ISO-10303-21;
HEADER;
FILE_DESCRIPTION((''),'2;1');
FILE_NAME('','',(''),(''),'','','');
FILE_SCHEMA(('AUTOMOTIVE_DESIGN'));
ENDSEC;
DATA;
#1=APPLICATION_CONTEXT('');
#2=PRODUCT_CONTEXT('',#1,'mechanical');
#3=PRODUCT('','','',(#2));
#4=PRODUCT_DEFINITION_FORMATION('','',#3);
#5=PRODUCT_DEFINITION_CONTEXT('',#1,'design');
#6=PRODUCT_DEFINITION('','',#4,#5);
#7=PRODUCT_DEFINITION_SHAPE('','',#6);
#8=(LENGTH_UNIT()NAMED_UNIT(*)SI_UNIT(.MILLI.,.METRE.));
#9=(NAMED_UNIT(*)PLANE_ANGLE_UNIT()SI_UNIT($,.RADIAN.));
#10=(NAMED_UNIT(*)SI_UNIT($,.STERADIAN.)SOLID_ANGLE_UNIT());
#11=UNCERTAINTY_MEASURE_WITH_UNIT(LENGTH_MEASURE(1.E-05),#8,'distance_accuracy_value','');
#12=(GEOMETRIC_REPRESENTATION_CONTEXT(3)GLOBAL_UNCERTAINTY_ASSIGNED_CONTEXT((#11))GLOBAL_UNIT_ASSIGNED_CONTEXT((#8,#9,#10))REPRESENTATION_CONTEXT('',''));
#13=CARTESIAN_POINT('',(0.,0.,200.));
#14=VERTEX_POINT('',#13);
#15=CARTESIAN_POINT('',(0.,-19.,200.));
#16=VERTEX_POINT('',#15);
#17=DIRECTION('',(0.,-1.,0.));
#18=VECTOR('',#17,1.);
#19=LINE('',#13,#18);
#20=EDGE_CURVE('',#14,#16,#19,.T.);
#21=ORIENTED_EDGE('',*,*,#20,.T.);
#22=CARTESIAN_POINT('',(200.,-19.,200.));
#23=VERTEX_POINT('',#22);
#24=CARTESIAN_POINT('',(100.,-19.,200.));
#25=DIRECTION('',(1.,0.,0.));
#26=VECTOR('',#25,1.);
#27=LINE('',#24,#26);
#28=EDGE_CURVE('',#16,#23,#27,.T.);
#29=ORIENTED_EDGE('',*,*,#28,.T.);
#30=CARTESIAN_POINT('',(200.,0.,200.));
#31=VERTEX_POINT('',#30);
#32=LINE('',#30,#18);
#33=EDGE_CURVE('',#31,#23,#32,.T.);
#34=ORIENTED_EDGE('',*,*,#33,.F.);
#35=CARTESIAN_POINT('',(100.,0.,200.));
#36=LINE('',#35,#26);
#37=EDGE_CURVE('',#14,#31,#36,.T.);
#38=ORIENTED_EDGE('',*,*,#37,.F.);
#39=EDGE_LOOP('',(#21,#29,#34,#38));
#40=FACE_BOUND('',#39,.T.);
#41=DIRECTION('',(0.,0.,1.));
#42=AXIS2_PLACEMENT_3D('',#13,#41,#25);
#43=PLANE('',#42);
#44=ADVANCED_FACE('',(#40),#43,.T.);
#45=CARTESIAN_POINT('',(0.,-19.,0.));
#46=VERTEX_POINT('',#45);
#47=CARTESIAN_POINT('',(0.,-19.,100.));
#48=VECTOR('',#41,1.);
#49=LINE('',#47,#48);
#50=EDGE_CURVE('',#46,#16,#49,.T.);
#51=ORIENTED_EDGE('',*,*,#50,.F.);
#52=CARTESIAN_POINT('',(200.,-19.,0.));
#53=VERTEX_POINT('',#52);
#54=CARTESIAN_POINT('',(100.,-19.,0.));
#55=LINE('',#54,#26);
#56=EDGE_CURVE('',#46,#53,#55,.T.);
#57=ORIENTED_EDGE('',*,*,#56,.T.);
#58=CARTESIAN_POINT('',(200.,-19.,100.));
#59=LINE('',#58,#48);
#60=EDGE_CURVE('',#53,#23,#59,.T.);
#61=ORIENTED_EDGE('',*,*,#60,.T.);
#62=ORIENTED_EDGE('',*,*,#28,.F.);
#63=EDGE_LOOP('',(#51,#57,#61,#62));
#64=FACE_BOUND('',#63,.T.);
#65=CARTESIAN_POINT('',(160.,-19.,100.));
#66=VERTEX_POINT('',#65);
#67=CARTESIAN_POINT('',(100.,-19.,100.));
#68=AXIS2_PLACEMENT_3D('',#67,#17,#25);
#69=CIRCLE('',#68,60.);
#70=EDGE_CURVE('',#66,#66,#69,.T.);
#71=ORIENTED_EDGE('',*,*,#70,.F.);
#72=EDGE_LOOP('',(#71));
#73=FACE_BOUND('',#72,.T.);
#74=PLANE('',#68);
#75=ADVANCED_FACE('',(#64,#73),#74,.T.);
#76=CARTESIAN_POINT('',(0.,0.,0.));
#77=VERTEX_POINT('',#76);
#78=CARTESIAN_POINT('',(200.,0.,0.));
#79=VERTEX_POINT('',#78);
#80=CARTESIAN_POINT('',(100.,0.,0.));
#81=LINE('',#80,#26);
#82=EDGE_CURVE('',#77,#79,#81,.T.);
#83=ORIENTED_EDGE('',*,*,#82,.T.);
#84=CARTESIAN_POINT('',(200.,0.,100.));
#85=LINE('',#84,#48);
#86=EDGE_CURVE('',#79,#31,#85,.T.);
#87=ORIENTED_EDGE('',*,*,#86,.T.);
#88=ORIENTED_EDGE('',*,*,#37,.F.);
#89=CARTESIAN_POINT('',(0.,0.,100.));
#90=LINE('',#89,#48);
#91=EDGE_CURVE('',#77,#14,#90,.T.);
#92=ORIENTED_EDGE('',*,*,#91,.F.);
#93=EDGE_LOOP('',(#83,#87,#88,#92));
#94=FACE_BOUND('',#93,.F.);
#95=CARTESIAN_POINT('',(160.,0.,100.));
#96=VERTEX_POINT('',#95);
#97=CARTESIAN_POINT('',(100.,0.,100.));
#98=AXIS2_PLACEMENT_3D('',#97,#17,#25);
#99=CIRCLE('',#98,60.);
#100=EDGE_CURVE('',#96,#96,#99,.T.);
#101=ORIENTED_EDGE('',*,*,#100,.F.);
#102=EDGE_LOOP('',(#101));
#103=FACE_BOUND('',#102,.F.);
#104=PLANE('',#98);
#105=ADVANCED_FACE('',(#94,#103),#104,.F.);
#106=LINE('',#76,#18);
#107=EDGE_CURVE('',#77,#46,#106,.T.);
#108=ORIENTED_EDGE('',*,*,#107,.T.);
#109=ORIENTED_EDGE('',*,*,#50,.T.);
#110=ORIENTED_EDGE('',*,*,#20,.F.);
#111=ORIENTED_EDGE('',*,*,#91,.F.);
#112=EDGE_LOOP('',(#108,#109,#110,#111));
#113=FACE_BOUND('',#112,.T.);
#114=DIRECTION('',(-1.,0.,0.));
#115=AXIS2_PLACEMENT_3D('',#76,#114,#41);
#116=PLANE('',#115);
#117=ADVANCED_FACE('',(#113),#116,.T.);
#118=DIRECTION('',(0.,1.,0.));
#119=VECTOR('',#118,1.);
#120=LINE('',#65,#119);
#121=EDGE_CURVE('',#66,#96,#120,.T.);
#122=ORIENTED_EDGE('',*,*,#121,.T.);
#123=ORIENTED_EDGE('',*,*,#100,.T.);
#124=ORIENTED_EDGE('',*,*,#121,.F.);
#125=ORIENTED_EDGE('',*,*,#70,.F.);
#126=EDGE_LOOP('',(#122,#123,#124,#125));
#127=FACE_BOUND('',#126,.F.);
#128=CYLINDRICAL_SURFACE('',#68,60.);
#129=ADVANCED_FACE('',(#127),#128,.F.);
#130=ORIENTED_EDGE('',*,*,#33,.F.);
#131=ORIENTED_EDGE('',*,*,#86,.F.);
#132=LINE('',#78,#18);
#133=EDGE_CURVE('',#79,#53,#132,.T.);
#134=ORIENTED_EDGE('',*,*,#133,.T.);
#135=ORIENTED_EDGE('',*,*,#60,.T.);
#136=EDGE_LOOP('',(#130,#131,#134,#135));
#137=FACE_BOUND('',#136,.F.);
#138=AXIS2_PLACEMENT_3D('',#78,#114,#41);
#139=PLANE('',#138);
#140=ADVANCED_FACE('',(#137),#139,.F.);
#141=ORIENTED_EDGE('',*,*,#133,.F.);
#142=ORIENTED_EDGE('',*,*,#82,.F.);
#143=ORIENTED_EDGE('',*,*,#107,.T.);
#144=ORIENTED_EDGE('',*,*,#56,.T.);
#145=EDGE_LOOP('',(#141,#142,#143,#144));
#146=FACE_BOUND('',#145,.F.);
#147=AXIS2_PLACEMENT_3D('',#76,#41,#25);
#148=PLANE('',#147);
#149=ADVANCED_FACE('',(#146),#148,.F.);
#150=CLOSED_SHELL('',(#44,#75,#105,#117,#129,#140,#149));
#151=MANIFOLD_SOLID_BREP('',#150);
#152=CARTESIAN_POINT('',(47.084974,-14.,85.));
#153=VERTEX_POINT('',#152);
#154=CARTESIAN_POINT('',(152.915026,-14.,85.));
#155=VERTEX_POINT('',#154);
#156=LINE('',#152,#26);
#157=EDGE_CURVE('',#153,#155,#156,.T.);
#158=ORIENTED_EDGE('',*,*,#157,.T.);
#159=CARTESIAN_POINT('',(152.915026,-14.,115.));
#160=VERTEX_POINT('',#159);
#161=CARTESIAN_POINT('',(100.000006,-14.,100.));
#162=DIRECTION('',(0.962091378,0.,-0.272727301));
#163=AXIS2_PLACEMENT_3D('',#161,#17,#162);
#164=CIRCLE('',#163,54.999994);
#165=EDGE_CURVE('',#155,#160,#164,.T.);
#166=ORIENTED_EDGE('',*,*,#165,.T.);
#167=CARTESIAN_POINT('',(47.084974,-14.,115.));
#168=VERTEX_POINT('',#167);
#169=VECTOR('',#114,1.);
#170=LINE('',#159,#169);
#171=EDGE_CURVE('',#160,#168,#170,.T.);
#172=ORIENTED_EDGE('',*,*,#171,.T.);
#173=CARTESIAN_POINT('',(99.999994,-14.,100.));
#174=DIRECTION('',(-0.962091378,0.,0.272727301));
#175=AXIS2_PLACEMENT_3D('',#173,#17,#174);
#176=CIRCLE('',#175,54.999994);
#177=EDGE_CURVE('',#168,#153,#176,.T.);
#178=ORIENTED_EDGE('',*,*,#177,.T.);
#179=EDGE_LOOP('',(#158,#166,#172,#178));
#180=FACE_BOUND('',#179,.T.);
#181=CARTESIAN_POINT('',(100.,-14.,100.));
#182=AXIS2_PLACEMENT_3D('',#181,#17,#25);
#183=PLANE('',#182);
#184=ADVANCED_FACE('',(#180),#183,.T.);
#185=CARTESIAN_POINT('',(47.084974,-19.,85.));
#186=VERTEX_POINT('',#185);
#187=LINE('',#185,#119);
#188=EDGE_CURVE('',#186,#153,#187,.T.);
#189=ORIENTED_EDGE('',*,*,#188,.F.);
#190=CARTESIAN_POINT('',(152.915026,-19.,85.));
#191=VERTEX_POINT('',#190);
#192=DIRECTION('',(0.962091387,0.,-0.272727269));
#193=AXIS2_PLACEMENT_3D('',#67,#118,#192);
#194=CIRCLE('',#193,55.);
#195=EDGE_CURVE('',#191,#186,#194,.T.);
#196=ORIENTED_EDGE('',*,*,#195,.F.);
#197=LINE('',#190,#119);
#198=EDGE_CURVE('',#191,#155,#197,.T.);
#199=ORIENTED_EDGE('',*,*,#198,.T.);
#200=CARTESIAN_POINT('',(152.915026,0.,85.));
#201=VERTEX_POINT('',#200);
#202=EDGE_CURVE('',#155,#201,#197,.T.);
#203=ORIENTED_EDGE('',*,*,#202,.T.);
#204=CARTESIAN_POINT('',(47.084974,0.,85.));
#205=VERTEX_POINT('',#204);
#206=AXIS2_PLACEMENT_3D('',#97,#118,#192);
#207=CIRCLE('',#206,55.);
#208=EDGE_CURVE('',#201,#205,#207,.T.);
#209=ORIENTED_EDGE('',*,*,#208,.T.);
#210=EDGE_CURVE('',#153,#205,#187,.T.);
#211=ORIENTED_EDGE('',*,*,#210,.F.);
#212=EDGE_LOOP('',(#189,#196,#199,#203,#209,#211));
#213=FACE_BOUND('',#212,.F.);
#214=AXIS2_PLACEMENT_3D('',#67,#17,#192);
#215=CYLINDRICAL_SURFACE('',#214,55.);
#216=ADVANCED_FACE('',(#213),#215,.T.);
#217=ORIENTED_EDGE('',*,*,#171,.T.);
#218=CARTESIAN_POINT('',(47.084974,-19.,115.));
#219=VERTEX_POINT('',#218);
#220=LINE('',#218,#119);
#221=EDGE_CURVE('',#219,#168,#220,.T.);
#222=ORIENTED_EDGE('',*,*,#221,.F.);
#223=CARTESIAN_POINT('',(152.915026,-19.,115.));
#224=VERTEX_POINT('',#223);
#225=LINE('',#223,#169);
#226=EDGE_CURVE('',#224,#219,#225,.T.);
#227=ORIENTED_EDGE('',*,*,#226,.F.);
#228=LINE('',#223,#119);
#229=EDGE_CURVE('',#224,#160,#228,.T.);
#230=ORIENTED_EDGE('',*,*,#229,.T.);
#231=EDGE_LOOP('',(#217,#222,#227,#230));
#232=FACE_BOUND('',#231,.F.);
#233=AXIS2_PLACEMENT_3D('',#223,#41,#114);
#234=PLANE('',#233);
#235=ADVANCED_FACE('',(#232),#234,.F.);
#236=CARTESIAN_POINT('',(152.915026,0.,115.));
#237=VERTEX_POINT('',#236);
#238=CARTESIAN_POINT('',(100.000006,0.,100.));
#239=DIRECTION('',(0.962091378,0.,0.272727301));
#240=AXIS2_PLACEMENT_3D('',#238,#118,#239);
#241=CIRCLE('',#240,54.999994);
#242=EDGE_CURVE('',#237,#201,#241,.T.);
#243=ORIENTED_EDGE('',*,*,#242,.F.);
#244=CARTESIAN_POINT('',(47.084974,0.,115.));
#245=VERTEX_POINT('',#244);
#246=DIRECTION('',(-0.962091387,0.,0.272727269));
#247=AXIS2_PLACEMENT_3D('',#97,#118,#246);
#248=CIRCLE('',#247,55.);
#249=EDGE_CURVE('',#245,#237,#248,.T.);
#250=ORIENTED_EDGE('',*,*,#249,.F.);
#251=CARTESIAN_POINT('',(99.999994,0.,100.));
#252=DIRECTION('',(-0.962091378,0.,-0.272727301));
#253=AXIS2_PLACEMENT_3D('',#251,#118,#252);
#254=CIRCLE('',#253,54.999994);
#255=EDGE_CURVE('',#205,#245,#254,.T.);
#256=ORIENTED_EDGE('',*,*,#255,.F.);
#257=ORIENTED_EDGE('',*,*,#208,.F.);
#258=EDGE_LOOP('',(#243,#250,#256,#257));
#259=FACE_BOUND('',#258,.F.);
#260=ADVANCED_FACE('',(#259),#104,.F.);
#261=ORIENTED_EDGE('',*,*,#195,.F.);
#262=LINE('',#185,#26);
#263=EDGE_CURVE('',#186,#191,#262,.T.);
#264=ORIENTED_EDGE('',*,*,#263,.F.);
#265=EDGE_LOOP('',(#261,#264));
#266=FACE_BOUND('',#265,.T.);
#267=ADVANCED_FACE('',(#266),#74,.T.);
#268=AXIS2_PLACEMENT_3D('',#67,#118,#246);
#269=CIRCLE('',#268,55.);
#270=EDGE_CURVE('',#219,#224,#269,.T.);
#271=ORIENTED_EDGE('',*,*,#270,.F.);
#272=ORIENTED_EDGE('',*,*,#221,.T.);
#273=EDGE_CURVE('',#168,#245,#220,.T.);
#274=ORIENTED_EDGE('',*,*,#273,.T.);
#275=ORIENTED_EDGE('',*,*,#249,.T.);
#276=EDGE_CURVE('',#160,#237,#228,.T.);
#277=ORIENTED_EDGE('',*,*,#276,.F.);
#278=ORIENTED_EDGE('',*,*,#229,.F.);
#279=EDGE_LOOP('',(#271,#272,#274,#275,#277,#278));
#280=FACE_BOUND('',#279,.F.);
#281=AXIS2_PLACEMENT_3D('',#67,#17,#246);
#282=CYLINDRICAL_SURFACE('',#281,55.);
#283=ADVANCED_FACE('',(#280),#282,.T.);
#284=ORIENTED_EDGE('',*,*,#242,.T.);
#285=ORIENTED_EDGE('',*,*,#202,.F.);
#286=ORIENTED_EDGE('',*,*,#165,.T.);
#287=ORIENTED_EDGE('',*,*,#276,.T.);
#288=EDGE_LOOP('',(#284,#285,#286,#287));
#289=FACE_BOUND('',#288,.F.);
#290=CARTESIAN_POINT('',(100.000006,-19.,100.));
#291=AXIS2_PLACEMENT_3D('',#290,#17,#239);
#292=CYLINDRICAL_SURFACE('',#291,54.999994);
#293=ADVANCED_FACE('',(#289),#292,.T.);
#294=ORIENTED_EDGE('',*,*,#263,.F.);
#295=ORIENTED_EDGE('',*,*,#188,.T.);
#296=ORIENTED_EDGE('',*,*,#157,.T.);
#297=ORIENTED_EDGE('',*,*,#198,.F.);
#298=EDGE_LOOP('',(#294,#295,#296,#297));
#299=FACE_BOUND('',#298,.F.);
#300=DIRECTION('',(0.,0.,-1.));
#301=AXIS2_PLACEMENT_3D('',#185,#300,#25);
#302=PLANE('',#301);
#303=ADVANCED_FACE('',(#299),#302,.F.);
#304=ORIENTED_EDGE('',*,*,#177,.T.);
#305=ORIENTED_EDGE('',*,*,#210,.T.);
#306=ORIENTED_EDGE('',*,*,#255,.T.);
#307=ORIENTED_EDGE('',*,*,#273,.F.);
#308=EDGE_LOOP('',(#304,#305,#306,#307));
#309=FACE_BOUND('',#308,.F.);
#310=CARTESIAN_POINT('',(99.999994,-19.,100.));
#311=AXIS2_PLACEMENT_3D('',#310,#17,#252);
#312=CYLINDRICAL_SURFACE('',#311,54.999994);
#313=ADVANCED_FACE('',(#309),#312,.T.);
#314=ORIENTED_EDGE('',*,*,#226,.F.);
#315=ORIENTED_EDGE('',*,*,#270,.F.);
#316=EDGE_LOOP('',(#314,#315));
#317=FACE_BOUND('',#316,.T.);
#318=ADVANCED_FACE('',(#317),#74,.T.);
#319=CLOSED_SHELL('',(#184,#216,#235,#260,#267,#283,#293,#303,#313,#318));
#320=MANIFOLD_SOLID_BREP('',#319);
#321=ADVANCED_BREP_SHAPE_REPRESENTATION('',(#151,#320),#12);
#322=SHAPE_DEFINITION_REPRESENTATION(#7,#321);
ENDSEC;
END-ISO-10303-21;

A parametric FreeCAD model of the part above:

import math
import FreeCAD as App
import Part
import Sketcher
from FreeCAD import Vector

doc = App.newDocument("Part")
body = doc.addObject("PartDesign::Body", "Body")
body.AllowCompound = True

# Sketch on XZ plane
sketch1 = body.newObject("Sketcher::SketchObject", "Sketch")
sketch1.AttachmentSupport = (doc.getObject("XZ_Plane"), [""])
sketch1.MapMode = "FlatFace"
sketch1.addGeometry([
    Part.LineSegment(Vector(0, 200, 0), Vector(0, 0, 0)),
    Part.LineSegment(Vector(0, 0, 0), Vector(200, 0, 0)),
    Part.LineSegment(Vector(200, 0, 0), Vector(200, 200, 0)),
    Part.LineSegment(Vector(200, 200, 0), Vector(0, 200, 0)),
], False)
sketch1.addConstraint([
    Sketcher.Constraint("Coincident", 0, 2, 1, 1),
    Sketcher.Constraint("Coincident", 1, 2, 2, 1),
    Sketcher.Constraint("Coincident", 2, 2, 3, 1),
    Sketcher.Constraint("Coincident", 3, 2, 0, 1),
    Sketcher.Constraint("Vertical", 0),
    Sketcher.Constraint("Horizontal", 1),
    Sketcher.Constraint("Vertical", 2),
    Sketcher.Constraint("Horizontal", 3),
    Sketcher.Constraint("Coincident", 0, 2, -1, 1),
    Sketcher.Constraint("Equal", 3, 0),
    Sketcher.Constraint("DistanceX", 1, 1, 1, 2, 200.0),
])
pad1 = body.newObject("PartDesign::Pad", "Pad")
pad1.Profile = sketch1
pad1.Length = 19

# Sketch on XZ plane
sketch2 = body.newObject("Sketcher::SketchObject", "Sketch001")
sketch2.AttachmentSupport = (doc.getObject("XZ_Plane"), [""])
sketch2.MapMode = "FlatFace"
sketch2.AttachmentOffset = App.Placement(Vector(0, 0, 19), App.Rotation())
sketch2.addGeometry([
    Part.LineSegment(Vector(153, 115, 0), Vector(47, 115, 0)),
    Part.ArcOfCircle(Part.Circle(Vector(100, 100, 0), Vector(0, 0, 1), 55), math.radians(164), math.radians(196)),
    Part.LineSegment(Vector(47, 85, 0), Vector(153, 85, 0)),
    Part.ArcOfCircle(Part.Circle(Vector(100, 100, 0), Vector(0, 0, 1), 55), math.radians(-16), math.radians(16)),
], False)
sketch2.addConstraint([
    Sketcher.Constraint("Coincident", 0, 2, 1, 1),
    Sketcher.Constraint("Coincident", 1, 2, 2, 1),
    Sketcher.Constraint("Coincident", 2, 2, 3, 1),
    Sketcher.Constraint("Coincident", 3, 2, 0, 1),
    Sketcher.Constraint("Horizontal", 0),
    Sketcher.Constraint("Horizontal", 2),
    Sketcher.Constraint("Equal", 1, 3),
    Sketcher.Constraint("Horizontal", 1, 3, 3, 3),
    Sketcher.Constraint("Vertical", 0, 2, 1, 2),
    Sketcher.Constraint("DistanceY", -1, 1, 1, 3, 100.0),
    Sketcher.Constraint("DistanceY", -1, 1, 0, 2, 115.0),
    Sketcher.Constraint("Radius", 1, 54.999994),
    Sketcher.Constraint("DistanceX", 0, 2, 0, 1, 105.830052),
    Sketcher.Constraint("DistanceX", -1, 1, 1, 3, 99.999994),
])
pocket1 = body.newObject("PartDesign::Pocket", "Pocket")
pocket1.Profile = sketch2
pocket1.Length = 5

# Sketch on XZ plane
sketch3 = body.newObject("Sketcher::SketchObject", "Sketch002")
sketch3.AttachmentSupport = (doc.getObject("XZ_Plane"), [""])
sketch3.MapMode = "FlatFace"
sketch3.AttachmentOffset = App.Placement(Vector(0, 0, 19), App.Rotation())
sketch3.addGeometry([
    Part.Circle(Vector(100, 100, 0), Vector(0, 0, 1), 60),  # 0
    Part.ArcOfCircle(Part.Circle(Vector(100, 100, 0), Vector(0, 0, 1), 55), math.radians(-164), math.radians(-16)),  # 1
    Part.ArcOfCircle(Part.Circle(Vector(100, 100, 0), Vector(0, 0, 1), 55), math.radians(164), math.radians(196)),  # 2
    Part.ArcOfCircle(Part.Circle(Vector(100, 100, 0), Vector(0, 0, 1), 55), math.radians(16), math.radians(164)),  # 3
    Part.ArcOfCircle(Part.Circle(Vector(100, 100, 0), Vector(0, 0, 1), 55), math.radians(-16), math.radians(16)),  # 4
], False)
sketch3.addConstraint([
    Sketcher.Constraint("Tangent", 1, 1, 2, 2),
    Sketcher.Constraint("Tangent", 2, 1, 3, 2),
    Sketcher.Constraint("Tangent", 3, 1, 4, 2),
    Sketcher.Constraint("Tangent", 4, 1, 1, 2),
    Sketcher.Constraint("Coincident", 1, 3, 0, 3),
    Sketcher.Constraint("Horizontal", 2, 1, 3, 1),
    Sketcher.Constraint("Horizontal", 1, 1, 4, 1),
    Sketcher.Constraint("Vertical", 1, 1, 2, 1),
    Sketcher.Constraint("Diameter", 0, 120.0),
    Sketcher.Constraint("Radius", 1, 55.0),
    Sketcher.Constraint("DistanceX", -1, 1, 0, 3, 100.0),
    Sketcher.Constraint("DistanceY", -1, 1, 0, 3, 100.0),
    Sketcher.Constraint("DistanceY", -1, 1, 2, 3, 100.0),
    Sketcher.Constraint("DistanceY", -1, 1, 1, 1, 85.0),
])
pocket2 = body.newObject("PartDesign::Pocket", "Pocket001")
pocket2.Profile = sketch3
pocket2.Length = 19

doc.recompute()
